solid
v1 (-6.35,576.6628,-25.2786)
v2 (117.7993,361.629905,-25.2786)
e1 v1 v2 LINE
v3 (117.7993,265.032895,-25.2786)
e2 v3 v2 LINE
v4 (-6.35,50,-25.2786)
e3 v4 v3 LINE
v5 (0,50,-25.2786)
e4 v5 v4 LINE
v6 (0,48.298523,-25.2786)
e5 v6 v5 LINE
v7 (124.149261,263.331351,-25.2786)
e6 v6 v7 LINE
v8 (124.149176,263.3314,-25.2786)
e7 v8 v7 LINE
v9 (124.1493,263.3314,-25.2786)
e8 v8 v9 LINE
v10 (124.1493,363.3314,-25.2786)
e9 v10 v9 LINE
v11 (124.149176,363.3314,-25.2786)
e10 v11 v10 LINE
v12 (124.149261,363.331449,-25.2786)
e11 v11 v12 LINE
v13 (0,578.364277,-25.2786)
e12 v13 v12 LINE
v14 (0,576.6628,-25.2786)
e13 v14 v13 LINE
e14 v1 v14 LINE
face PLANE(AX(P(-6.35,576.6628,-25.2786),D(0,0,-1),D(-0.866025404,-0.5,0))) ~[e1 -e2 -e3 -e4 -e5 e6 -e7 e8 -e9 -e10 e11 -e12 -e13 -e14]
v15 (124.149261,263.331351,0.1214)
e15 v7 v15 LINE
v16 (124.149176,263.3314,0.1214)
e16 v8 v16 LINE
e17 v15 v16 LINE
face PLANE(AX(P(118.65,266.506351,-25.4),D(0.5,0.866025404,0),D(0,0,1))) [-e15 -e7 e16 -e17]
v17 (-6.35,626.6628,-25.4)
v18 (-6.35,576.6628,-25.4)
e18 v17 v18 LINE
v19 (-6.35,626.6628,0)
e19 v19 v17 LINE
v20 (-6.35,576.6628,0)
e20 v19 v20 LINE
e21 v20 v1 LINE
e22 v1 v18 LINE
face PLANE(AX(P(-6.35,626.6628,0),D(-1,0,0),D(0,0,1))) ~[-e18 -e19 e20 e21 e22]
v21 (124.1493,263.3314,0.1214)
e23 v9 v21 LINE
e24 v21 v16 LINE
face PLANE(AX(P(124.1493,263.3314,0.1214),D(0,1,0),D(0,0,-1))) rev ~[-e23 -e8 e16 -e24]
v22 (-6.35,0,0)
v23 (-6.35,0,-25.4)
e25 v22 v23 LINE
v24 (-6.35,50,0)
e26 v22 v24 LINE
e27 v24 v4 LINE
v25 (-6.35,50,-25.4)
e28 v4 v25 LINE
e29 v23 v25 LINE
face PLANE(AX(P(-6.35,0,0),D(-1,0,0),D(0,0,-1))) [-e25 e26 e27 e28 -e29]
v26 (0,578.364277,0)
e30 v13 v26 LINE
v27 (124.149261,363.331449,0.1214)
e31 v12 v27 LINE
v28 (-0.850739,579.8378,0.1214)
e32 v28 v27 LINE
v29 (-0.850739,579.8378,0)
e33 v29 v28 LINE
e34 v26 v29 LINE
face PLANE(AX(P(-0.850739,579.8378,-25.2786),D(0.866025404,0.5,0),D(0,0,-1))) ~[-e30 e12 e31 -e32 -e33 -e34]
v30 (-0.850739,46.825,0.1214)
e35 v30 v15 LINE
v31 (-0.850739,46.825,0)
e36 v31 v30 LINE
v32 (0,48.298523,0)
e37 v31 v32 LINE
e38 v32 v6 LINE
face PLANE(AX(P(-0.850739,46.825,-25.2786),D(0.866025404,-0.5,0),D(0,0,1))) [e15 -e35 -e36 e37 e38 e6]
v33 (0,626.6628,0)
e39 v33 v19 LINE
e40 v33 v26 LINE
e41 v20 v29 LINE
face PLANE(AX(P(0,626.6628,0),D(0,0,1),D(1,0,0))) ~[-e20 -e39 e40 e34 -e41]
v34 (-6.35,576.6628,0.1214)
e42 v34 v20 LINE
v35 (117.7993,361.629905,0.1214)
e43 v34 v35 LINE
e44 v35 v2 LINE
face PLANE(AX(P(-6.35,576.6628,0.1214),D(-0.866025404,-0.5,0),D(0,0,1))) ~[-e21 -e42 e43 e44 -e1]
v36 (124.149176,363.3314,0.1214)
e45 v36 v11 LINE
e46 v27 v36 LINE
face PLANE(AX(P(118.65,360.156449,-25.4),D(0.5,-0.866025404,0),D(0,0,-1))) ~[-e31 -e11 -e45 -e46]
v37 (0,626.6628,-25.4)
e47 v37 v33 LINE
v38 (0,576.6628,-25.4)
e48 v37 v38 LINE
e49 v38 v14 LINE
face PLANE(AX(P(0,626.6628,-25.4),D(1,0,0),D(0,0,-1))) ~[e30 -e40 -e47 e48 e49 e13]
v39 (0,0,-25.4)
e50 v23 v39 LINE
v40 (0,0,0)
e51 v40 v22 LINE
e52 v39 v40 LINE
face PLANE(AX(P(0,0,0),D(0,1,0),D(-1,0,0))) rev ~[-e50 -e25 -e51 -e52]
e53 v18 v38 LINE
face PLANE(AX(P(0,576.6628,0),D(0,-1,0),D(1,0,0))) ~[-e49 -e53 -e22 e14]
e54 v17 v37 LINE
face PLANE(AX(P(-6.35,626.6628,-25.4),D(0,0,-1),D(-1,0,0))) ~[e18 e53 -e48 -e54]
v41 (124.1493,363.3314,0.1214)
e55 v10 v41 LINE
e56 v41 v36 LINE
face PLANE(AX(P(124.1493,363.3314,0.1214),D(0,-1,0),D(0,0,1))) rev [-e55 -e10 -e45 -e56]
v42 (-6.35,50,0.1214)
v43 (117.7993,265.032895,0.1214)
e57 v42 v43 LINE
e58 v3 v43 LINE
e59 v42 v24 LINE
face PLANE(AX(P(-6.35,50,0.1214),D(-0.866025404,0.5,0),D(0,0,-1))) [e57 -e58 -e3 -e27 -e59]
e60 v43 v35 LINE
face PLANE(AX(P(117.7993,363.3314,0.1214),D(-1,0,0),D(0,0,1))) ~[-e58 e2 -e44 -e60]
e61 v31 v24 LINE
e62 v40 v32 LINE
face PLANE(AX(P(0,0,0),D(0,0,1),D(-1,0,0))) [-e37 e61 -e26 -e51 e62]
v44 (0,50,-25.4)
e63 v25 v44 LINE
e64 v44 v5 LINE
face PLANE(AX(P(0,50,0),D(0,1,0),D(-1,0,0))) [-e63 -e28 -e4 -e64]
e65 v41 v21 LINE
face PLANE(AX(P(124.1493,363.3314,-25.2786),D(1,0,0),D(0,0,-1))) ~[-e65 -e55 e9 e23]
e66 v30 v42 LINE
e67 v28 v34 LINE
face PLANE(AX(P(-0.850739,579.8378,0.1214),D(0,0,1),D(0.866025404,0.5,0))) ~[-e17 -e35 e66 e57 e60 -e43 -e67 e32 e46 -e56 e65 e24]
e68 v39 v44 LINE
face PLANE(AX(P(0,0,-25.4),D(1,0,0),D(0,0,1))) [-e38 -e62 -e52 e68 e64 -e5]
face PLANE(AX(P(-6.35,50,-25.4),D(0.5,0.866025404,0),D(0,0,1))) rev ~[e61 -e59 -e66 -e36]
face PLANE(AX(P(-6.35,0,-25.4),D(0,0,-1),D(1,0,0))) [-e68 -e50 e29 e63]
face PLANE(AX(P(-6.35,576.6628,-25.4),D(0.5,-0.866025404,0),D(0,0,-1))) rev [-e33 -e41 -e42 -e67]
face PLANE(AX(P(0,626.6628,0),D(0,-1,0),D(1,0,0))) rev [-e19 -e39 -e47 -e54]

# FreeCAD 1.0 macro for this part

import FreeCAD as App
import Part
import Sketcher
from FreeCAD import Vector
Q = App.Units.Quantity

doc = App.newDocument("Part")
body = doc.addObject("PartDesign::Body", "Body")

sketch1 = doc.addObject("Sketcher::SketchObject", "Sketch")
body.addObject(sketch1)
sketch1.AttachmentSupport = (doc.XZ_Plane, [""])
sketch1.MapMode = "FlatFace"
sketch1.addGeometry(Part.LineSegment(Vector(-6, 0, 0), Vector(0, 0, 0)), False)
sketch1.addGeometry(Part.LineSegment(Vector(0, 0, 0), Vector(0, -25, 0)), False)
sketch1.addGeometry(Part.LineSegment(Vector(0, -25, 0), Vector(-6, -25, 0)), False)
sketch1.addGeometry(Part.LineSegment(Vector(-6, -25, 0), Vector(-6, 0, 0)), False)
sketch1.addConstraint(Sketcher.Constraint("Coincident", 0, 2, 1, 1))
sketch1.addConstraint(Sketcher.Constraint("Coincident", 1, 2, 2, 1))
sketch1.addConstraint(Sketcher.Constraint("Coincident", 2, 2, 3, 1))
sketch1.addConstraint(Sketcher.Constraint("Coincident", 3, 2, 0, 1))
sketch1.addConstraint(Sketcher.Constraint("Horizontal", 0))
sketch1.addConstraint(Sketcher.Constraint("Vertical", 1))
sketch1.addConstraint(Sketcher.Constraint("Horizontal", 2))
sketch1.addConstraint(Sketcher.Constraint("Vertical", 3))
sketch1.addConstraint(Sketcher.Constraint("Coincident", 0, 2, -1, 1))
sketch1.addConstraint(Sketcher.Constraint("DistanceY", 1, 2, 1, 1, Q("1 in")))
sketch1.addConstraint(Sketcher.Constraint("DistanceX", 0, 1, 0, 2, Q("0.25 in")))
pad1 = doc.addObject("PartDesign::Pad", "Pad")
body.addObject(pad1)
pad1.Profile = sketch1
pad1.Length = Q("1.9685039 in")
pad1.Reversed = True

sketch2 = doc.addObject("Sketcher::SketchObject", "Sketch001")
body.addObject(sketch2)
sketch2.Placement = App.Placement(Vector(-6.35, 50, -25.4), App.Rotation(Vector(0, 0, 1), Vector(0.866025404, -0.5, 0), Vector(0.5, 0.866025404, 0), "ZXY"))
sketch2.addGeometry(Part.LineSegment(Vector(0, 0, 0), Vector(26, 0, 0)), False)
sketch2.addGeometry(Part.LineSegment(Vector(26, 0, 0), Vector(26, 6, 0)), False)
sketch2.addGeometry(Part.LineSegment(Vector(26, 6, 0), Vector(0, 6, 0)), False)
sketch2.addGeometry(Part.LineSegment(Vector(0, 6, 0), Vector(0, 0, 0)), False)
sketch2.addConstraint(Sketcher.Constraint("Coincident", 0, 2, 1, 1))
sketch2.addConstraint(Sketcher.Constraint("Coincident", 1, 2, 2, 1))
sketch2.addConstraint(Sketcher.Constraint("Coincident", 2, 2, 3, 1))
sketch2.addConstraint(Sketcher.Constraint("Coincident", 3, 2, 0, 1))
sketch2.addConstraint(Sketcher.Constraint("Horizontal", 0))
sketch2.addConstraint(Sketcher.Constraint("Vertical", 1))
sketch2.addConstraint(Sketcher.Constraint("Horizontal", 2))
sketch2.addConstraint(Sketcher.Constraint("Vertical", 3))
sketch2.addConstraint(Sketcher.Constraint("PointOnObject", 0, 2, -1))
sketch2.addConstraint(Sketcher.Constraint("DistanceX", 0, 1, 0, 2, Q("1 in")))
sketch2.addConstraint(Sketcher.Constraint("DistanceY", 1, 1, 1, 2, Q("0.25 in")))
sketch2.addConstraint(Sketcher.Constraint("DistanceX", -1, 1, 0, 2, 25.5214))
pad2 = doc.addObject("PartDesign::Pad", "Pad001")
body.addObject(pad2)
pad2.Profile = sketch2
pad2.Length = 250

sketch3 = doc.addObject("Sketcher::SketchObject", "Sketch002")
body.addObject(sketch3)
sketch3.AttachmentSupport = (doc.XZ_Plane, [""])
sketch3.MapMode = "FlatFace"
sketch3.AttachmentOffset = App.Placement(Vector(0, 0, -263.3314), App.Rotation())
sketch3.addGeometry(Part.LineSegment(Vector(124, -25, 0), Vector(118, -25, 0)), False)
sketch3.addGeometry(Part.LineSegment(Vector(118, -25, 0), Vector(118, 0, 0)), False)
sketch3.addGeometry(Part.LineSegment(Vector(118, 0, 0), Vector(124, 0, 0)), False)
sketch3.addGeometry(Part.LineSegment(Vector(124, 0, 0), Vector(124, -25, 0)), False)
sketch3.addConstraint(Sketcher.Constraint("Coincident", 0, 2, 1, 1))
sketch3.addConstraint(Sketcher.Constraint("Coincident", 1, 2, 2, 1))
sketch3.addConstraint(Sketcher.Constraint("Coincident", 2, 2, 3, 1))
sketch3.addConstraint(Sketcher.Constraint("Coincident", 3, 2, 0, 1))
sketch3.addConstraint(Sketcher.Constraint("Horizontal", 0))
sketch3.addConstraint(Sketcher.Constraint("Vertical", 1))
sketch3.addConstraint(Sketcher.Constraint("Horizontal", 2))
sketch3.addConstraint(Sketcher.Constraint("Vertical", 3))
sketch3.addConstraint(Sketcher.Constraint("DistanceY", 1, 1, 1, 2, Q("1 in")))
sketch3.addConstraint(Sketcher.Constraint("DistanceX", 0, 2, 0, 1, Q("0.25 in")))
sketch3.addConstraint(Sketcher.Constraint("DistanceX", -1, 1, 0, 2, 117.7993))
sketch3.addConstraint(Sketcher.Constraint("DistanceY", 0, 2, -1, 1, 25.2786))
pad3 = doc.addObject("PartDesign::Pad", "Pad002")
body.addObject(pad3)
pad3.Profile = sketch3
pad3.Length = Q("1.9685039 in")
pad3.Reversed = True
doc.recompute()

datumplane = doc.addObject("PartDesign::Plane", "DatumPlane")
body.addObject(datumplane)
datumplane.AttachmentSupport = (doc.XZ_Plane, [""])
datumplane.MapMode = "FlatFace"
datumplane.AttachmentOffset = App.Placement(Vector(0, 0, -313.3314), App.Rotation())
mirrored = doc.addObject("PartDesign::Mirrored", "Mirrored")
body.addObject(mirrored)
mirrored.Originals = [pad1, pad2, pad3]
mirrored.MirrorPlane = (datumplane, [""])
body.Tip = mirrored

doc.recompute()
